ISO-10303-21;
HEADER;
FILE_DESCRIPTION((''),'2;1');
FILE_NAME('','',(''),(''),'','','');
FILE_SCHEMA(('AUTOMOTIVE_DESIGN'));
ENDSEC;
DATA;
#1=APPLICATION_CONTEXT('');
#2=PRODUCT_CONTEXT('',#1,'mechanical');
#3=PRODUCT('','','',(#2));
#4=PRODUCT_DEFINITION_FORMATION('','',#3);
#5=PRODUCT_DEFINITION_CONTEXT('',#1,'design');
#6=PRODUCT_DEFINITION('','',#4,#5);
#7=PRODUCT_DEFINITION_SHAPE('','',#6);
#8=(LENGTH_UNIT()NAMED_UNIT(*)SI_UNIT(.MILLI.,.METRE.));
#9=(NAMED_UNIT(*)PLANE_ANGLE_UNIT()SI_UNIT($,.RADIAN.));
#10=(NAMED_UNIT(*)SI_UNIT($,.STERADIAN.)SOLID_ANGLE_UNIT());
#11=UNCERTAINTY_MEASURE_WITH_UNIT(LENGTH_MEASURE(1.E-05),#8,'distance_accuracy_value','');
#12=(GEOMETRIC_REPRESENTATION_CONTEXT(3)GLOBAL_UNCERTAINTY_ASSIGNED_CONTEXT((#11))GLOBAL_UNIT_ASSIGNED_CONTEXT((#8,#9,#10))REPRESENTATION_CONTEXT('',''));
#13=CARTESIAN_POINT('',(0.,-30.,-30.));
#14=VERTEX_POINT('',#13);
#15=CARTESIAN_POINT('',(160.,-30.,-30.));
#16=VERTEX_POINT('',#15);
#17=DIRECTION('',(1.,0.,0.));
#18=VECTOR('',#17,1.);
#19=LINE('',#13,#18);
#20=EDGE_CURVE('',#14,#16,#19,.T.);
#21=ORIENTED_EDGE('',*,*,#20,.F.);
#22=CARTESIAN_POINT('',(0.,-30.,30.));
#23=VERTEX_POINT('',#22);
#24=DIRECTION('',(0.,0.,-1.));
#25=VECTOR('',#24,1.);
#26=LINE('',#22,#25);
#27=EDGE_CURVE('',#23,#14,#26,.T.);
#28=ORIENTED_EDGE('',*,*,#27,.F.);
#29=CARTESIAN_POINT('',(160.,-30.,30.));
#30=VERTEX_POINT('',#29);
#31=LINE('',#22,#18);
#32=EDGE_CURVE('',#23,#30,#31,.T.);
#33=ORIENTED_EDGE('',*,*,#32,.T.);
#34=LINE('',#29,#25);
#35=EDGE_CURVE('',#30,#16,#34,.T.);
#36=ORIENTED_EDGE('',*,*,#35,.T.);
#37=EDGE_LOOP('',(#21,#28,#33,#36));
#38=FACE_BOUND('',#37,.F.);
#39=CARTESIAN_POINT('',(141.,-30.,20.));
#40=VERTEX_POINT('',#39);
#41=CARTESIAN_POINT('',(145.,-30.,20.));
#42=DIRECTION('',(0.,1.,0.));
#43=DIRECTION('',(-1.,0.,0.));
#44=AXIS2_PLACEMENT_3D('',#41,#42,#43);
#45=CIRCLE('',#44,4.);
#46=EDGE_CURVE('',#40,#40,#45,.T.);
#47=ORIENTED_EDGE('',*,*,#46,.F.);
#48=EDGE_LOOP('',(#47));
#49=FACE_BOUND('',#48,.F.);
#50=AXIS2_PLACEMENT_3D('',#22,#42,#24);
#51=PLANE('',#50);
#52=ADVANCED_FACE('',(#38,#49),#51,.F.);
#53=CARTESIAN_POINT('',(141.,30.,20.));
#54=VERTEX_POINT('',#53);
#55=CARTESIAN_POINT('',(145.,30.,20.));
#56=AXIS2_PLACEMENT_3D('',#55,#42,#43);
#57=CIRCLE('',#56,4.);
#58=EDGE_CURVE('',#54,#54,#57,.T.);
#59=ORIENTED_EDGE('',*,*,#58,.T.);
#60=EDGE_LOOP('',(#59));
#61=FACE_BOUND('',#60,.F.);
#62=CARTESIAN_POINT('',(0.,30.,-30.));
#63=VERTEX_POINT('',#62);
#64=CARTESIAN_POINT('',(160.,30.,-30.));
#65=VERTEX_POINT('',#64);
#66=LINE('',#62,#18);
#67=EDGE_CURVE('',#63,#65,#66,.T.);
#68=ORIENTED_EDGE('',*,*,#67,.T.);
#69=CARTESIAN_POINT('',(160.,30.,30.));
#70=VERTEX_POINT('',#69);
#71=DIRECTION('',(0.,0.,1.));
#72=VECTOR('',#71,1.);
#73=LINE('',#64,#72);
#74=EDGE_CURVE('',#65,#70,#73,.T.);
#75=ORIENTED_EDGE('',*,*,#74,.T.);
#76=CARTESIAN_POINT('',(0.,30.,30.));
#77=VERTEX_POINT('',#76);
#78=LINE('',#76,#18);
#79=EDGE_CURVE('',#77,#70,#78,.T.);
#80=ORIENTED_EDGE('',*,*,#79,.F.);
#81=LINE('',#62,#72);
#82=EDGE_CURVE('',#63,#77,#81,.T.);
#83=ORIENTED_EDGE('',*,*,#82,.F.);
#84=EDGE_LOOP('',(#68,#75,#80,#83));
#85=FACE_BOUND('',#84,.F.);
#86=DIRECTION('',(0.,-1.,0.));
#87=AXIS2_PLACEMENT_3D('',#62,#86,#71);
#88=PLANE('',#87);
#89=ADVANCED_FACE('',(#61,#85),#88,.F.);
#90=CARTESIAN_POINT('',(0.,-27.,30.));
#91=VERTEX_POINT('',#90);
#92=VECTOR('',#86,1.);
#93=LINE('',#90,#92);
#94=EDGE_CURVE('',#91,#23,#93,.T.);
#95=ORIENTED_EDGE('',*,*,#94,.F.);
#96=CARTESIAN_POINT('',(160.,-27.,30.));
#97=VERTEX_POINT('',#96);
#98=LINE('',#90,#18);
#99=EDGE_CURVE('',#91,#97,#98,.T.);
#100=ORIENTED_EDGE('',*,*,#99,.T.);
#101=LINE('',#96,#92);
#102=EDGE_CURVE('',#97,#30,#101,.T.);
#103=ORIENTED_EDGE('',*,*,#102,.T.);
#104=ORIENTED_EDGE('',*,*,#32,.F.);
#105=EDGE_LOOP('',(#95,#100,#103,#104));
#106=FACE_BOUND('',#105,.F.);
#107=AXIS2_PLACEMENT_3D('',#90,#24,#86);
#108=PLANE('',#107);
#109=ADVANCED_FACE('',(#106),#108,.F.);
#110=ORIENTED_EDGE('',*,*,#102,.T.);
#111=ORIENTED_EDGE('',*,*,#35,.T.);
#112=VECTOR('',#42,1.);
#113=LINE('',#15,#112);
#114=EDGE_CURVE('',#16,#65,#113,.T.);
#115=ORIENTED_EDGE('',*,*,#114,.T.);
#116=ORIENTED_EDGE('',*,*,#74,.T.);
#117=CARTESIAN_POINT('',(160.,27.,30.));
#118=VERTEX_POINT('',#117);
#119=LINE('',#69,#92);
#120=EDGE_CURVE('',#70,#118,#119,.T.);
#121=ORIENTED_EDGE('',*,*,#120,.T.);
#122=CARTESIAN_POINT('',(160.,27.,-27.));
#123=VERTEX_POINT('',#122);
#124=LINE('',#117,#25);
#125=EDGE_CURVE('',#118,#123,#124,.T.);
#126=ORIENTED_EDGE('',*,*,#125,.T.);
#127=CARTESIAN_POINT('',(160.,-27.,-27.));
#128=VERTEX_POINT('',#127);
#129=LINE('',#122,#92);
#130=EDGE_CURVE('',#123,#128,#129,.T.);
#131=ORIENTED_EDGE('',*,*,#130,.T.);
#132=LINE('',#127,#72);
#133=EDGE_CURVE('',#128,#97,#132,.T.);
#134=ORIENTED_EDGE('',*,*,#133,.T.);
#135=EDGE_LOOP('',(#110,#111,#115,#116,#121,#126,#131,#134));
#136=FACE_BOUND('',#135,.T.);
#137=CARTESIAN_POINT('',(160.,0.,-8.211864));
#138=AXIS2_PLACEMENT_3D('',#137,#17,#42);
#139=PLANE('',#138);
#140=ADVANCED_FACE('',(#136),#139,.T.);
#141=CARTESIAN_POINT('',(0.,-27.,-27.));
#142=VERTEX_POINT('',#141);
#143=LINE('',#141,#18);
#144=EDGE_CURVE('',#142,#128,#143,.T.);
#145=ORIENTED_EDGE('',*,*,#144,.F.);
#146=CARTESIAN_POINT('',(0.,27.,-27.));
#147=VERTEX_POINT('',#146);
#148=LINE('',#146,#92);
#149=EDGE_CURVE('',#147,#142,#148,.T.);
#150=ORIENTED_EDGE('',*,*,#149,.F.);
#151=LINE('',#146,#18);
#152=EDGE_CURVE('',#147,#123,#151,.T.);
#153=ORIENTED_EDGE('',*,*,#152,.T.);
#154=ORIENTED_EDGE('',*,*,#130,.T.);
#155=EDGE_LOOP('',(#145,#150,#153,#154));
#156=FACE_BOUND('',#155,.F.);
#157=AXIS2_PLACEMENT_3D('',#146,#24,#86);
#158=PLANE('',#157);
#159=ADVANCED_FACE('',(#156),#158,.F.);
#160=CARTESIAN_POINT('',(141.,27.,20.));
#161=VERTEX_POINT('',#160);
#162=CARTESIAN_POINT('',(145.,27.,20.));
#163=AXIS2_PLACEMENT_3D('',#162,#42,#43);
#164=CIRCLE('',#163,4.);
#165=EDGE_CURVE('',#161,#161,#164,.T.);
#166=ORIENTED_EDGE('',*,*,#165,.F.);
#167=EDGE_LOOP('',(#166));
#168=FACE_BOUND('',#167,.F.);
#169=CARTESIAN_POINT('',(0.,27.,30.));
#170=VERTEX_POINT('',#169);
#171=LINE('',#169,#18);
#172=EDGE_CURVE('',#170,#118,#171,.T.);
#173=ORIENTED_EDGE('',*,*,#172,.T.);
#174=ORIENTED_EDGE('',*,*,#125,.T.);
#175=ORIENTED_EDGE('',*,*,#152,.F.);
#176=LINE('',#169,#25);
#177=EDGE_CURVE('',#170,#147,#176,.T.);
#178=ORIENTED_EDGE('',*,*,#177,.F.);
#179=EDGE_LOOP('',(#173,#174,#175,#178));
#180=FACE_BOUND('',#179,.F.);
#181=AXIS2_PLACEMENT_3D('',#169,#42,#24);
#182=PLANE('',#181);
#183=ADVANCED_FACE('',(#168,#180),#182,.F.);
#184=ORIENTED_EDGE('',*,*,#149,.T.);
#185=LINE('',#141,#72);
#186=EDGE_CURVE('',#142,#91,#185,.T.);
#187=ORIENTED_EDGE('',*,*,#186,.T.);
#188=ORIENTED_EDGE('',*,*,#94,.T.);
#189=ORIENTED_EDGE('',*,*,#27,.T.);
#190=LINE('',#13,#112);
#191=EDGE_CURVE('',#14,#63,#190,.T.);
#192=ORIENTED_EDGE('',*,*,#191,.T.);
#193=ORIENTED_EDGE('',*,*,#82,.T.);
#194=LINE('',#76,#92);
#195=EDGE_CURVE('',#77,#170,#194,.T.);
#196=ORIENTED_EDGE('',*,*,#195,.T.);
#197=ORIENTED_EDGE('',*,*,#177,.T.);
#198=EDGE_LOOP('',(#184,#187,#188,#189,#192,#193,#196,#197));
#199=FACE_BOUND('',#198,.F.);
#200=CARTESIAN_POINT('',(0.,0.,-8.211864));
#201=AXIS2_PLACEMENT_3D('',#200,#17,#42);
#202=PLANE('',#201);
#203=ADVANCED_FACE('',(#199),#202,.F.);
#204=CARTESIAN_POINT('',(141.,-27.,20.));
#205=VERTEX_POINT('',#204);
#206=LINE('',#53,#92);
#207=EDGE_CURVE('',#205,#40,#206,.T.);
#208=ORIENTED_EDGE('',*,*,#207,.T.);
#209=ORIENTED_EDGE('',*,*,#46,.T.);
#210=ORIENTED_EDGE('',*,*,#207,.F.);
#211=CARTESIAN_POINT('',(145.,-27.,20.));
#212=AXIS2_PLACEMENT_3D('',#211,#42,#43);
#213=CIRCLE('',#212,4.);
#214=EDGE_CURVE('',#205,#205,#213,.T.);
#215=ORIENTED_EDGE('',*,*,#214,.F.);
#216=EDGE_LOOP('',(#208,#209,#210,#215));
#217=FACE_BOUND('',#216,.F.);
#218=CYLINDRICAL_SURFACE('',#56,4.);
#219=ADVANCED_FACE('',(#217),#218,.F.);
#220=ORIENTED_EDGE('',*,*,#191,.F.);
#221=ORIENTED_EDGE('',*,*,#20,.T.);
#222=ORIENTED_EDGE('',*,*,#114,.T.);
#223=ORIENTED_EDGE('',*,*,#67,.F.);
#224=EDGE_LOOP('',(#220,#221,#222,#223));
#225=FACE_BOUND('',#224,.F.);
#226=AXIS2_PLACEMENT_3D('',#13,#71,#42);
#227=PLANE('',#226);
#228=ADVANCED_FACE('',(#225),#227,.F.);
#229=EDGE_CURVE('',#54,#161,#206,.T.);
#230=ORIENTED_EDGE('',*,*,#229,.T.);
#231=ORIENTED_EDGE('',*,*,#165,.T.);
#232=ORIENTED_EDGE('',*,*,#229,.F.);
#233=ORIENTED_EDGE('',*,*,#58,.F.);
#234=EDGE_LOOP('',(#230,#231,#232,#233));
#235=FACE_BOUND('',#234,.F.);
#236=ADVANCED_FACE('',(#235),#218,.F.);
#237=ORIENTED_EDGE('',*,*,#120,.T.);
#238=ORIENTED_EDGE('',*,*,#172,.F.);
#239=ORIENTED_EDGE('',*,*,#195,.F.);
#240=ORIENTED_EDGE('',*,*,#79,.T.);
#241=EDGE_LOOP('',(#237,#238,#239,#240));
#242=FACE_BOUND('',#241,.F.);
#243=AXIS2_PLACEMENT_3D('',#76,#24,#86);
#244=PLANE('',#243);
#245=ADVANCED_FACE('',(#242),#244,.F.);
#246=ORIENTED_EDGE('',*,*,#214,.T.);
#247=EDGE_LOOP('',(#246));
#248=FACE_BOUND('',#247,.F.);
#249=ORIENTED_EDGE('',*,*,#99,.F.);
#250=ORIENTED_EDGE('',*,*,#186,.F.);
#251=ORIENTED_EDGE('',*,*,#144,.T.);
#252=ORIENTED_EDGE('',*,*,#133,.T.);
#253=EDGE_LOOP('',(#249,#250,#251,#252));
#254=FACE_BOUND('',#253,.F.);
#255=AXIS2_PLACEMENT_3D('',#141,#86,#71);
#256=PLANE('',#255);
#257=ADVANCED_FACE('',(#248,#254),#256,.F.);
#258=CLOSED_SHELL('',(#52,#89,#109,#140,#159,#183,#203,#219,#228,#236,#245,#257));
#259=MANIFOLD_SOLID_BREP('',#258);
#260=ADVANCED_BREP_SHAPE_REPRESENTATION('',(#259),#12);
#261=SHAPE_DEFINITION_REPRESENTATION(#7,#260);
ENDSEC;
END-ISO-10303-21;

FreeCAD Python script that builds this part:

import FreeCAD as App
import Part
import Sketcher
Q = App.Units.Quantity

doc = App.newDocument("Part")
params = doc.addObject("Spreadsheet::Sheet", "Params")
for row, (alias, value) in enumerate([
    ("sketch1_width", "60 mm"),
    ("sketch1_width2", "3 mm"),
    ("sketch1_height", "57 mm"),
    ("pad1_length", "160 mm"),
    ("sketch2_diameter", "8 mm"),
], start=1):
    params.set(f"A{row}", alias)
    params.set(f"B{row}", "=" + value)
    params.setAlias(f"B{row}", alias)

body = doc.addObject("PartDesign::Body", "Body")

# Sketch on YZ plane
sketch1 = body.newObject("Sketcher::SketchObject", "Sketch")
sketch1.AttachmentSupport = (doc.getObject("YZ_Plane"), [""])
sketch1.MapMode = "FlatFace"
sketch1.addGeometry(Part.LineSegment(App.Vector(-30, 30, 0), App.Vector(-30, -30, 0)), False)
sketch1.addGeometry(Part.LineSegment(App.Vector(-30, -30, 0), App.Vector(30, -30, 0)), False)
sketch1.addGeometry(Part.LineSegment(App.Vector(30, -30, 0), App.Vector(30, 30, 0)), False)
sketch1.addGeometry(Part.LineSegment(App.Vector(30, 30, 0), App.Vector(27, 30, 0)), False)
sketch1.addGeometry(Part.LineSegment(App.Vector(27, 30, 0), App.Vector(27, -27, 0)), False)
sketch1.addGeometry(Part.LineSegment(App.Vector(27, -27, 0), App.Vector(-27, -27, 0)), False)
sketch1.addGeometry(Part.LineSegment(App.Vector(-27, -27, 0), App.Vector(-27, 30, 0)), False)
sketch1.addGeometry(Part.LineSegment(App.Vector(-27, 30, 0), App.Vector(-30, 30, 0)), False)
sketch1.addConstraint(Sketcher.Constraint("Coincident", 0, 2, 1, 1))
sketch1.addConstraint(Sketcher.Constraint("Coincident", 1, 2, 2, 1))
sketch1.addConstraint(Sketcher.Constraint("Coincident", 2, 2, 3, 1))
sketch1.addConstraint(Sketcher.Constraint("Coincident", 3, 2, 4, 1))
sketch1.addConstraint(Sketcher.Constraint("Coincident", 4, 2, 5, 1))
sketch1.addConstraint(Sketcher.Constraint("Coincident", 5, 2, 6, 1))
sketch1.addConstraint(Sketcher.Constraint("Coincident", 6, 2, 7, 1))
sketch1.addConstraint(Sketcher.Constraint("Coincident", 7, 2, 0, 1))
sketch1.addConstraint(Sketcher.Constraint("Vertical", 0))
sketch1.addConstraint(Sketcher.Constraint("Horizontal", 1))
sketch1.addConstraint(Sketcher.Constraint("Vertical", 2))
sketch1.addConstraint(Sketcher.Constraint("Horizontal", 3))
sketch1.addConstraint(Sketcher.Constraint("Vertical", 4))
sketch1.addConstraint(Sketcher.Constraint("Horizontal", 5))
sketch1.addConstraint(Sketcher.Constraint("Vertical", 6))
sketch1.addConstraint(Sketcher.Constraint("Horizontal", 7))
sketch1.addConstraint(Sketcher.Constraint("Symmetric", 0, 2, 2, 2, -1, 1))
sketch1.addConstraint(Sketcher.Constraint("Symmetric", 3, 2, 6, 2, -2))
sketch1.addConstraint(Sketcher.Constraint("Equal", 1, 0))
sketch1.addConstraint(Sketcher.Constraint("DistanceX", 1, 1, 1, 2, Q("60 mm")))
sketch1.addConstraint(Sketcher.Constraint("DistanceX", 3, 2, 3, 1, Q("3 mm")))
sketch1.addConstraint(Sketcher.Constraint("DistanceY", 4, 2, 4, 1, Q("57 mm")))
sketch1.setExpression("Constraints[19]", "Params.sketch1_width")
sketch1.setExpression("Constraints[20]", "Params.sketch1_width2")
sketch1.setExpression("Constraints[21]", "Params.sketch1_height")
pad1 = body.newObject("PartDesign::Pad", "Pad")
pad1.Profile = sketch1
pad1.setExpression("Length", "Params.pad1_length")

# Sketch on XZ plane
sketch2 = body.newObject("Sketcher::SketchObject", "Sketch001")
sketch2.AttachmentSupport = (doc.getObject("XZ_Plane"), [""])
sketch2.MapMode = "FlatFace"
sketch2.AttachmentOffset = App.Placement(App.Vector(0, 0, -30), App.Rotation())
sketch2.addGeometry(Part.Circle(App.Vector(145, 20, 0), App.Vector(0, 0, 1), 4), False)
sketch2.addConstraint(Sketcher.Constraint("Diameter", 0, Q("8 mm")))
sketch2.addConstraint(Sketcher.Constraint("DistanceX", -1, 1, 0, 3, Q("145 mm")))
sketch2.addConstraint(Sketcher.Constraint("DistanceY", -1, 1, 0, 3, Q("20 mm")))
sketch2.setExpression("Constraints[0]", "Params.sketch2_diameter")
pocket1 = body.newObject("PartDesign::Pocket", "Pocket")
pocket1.Profile = sketch2
pocket1.Type = "ThroughAll"
pocket1.Reversed = True

doc.recompute()
